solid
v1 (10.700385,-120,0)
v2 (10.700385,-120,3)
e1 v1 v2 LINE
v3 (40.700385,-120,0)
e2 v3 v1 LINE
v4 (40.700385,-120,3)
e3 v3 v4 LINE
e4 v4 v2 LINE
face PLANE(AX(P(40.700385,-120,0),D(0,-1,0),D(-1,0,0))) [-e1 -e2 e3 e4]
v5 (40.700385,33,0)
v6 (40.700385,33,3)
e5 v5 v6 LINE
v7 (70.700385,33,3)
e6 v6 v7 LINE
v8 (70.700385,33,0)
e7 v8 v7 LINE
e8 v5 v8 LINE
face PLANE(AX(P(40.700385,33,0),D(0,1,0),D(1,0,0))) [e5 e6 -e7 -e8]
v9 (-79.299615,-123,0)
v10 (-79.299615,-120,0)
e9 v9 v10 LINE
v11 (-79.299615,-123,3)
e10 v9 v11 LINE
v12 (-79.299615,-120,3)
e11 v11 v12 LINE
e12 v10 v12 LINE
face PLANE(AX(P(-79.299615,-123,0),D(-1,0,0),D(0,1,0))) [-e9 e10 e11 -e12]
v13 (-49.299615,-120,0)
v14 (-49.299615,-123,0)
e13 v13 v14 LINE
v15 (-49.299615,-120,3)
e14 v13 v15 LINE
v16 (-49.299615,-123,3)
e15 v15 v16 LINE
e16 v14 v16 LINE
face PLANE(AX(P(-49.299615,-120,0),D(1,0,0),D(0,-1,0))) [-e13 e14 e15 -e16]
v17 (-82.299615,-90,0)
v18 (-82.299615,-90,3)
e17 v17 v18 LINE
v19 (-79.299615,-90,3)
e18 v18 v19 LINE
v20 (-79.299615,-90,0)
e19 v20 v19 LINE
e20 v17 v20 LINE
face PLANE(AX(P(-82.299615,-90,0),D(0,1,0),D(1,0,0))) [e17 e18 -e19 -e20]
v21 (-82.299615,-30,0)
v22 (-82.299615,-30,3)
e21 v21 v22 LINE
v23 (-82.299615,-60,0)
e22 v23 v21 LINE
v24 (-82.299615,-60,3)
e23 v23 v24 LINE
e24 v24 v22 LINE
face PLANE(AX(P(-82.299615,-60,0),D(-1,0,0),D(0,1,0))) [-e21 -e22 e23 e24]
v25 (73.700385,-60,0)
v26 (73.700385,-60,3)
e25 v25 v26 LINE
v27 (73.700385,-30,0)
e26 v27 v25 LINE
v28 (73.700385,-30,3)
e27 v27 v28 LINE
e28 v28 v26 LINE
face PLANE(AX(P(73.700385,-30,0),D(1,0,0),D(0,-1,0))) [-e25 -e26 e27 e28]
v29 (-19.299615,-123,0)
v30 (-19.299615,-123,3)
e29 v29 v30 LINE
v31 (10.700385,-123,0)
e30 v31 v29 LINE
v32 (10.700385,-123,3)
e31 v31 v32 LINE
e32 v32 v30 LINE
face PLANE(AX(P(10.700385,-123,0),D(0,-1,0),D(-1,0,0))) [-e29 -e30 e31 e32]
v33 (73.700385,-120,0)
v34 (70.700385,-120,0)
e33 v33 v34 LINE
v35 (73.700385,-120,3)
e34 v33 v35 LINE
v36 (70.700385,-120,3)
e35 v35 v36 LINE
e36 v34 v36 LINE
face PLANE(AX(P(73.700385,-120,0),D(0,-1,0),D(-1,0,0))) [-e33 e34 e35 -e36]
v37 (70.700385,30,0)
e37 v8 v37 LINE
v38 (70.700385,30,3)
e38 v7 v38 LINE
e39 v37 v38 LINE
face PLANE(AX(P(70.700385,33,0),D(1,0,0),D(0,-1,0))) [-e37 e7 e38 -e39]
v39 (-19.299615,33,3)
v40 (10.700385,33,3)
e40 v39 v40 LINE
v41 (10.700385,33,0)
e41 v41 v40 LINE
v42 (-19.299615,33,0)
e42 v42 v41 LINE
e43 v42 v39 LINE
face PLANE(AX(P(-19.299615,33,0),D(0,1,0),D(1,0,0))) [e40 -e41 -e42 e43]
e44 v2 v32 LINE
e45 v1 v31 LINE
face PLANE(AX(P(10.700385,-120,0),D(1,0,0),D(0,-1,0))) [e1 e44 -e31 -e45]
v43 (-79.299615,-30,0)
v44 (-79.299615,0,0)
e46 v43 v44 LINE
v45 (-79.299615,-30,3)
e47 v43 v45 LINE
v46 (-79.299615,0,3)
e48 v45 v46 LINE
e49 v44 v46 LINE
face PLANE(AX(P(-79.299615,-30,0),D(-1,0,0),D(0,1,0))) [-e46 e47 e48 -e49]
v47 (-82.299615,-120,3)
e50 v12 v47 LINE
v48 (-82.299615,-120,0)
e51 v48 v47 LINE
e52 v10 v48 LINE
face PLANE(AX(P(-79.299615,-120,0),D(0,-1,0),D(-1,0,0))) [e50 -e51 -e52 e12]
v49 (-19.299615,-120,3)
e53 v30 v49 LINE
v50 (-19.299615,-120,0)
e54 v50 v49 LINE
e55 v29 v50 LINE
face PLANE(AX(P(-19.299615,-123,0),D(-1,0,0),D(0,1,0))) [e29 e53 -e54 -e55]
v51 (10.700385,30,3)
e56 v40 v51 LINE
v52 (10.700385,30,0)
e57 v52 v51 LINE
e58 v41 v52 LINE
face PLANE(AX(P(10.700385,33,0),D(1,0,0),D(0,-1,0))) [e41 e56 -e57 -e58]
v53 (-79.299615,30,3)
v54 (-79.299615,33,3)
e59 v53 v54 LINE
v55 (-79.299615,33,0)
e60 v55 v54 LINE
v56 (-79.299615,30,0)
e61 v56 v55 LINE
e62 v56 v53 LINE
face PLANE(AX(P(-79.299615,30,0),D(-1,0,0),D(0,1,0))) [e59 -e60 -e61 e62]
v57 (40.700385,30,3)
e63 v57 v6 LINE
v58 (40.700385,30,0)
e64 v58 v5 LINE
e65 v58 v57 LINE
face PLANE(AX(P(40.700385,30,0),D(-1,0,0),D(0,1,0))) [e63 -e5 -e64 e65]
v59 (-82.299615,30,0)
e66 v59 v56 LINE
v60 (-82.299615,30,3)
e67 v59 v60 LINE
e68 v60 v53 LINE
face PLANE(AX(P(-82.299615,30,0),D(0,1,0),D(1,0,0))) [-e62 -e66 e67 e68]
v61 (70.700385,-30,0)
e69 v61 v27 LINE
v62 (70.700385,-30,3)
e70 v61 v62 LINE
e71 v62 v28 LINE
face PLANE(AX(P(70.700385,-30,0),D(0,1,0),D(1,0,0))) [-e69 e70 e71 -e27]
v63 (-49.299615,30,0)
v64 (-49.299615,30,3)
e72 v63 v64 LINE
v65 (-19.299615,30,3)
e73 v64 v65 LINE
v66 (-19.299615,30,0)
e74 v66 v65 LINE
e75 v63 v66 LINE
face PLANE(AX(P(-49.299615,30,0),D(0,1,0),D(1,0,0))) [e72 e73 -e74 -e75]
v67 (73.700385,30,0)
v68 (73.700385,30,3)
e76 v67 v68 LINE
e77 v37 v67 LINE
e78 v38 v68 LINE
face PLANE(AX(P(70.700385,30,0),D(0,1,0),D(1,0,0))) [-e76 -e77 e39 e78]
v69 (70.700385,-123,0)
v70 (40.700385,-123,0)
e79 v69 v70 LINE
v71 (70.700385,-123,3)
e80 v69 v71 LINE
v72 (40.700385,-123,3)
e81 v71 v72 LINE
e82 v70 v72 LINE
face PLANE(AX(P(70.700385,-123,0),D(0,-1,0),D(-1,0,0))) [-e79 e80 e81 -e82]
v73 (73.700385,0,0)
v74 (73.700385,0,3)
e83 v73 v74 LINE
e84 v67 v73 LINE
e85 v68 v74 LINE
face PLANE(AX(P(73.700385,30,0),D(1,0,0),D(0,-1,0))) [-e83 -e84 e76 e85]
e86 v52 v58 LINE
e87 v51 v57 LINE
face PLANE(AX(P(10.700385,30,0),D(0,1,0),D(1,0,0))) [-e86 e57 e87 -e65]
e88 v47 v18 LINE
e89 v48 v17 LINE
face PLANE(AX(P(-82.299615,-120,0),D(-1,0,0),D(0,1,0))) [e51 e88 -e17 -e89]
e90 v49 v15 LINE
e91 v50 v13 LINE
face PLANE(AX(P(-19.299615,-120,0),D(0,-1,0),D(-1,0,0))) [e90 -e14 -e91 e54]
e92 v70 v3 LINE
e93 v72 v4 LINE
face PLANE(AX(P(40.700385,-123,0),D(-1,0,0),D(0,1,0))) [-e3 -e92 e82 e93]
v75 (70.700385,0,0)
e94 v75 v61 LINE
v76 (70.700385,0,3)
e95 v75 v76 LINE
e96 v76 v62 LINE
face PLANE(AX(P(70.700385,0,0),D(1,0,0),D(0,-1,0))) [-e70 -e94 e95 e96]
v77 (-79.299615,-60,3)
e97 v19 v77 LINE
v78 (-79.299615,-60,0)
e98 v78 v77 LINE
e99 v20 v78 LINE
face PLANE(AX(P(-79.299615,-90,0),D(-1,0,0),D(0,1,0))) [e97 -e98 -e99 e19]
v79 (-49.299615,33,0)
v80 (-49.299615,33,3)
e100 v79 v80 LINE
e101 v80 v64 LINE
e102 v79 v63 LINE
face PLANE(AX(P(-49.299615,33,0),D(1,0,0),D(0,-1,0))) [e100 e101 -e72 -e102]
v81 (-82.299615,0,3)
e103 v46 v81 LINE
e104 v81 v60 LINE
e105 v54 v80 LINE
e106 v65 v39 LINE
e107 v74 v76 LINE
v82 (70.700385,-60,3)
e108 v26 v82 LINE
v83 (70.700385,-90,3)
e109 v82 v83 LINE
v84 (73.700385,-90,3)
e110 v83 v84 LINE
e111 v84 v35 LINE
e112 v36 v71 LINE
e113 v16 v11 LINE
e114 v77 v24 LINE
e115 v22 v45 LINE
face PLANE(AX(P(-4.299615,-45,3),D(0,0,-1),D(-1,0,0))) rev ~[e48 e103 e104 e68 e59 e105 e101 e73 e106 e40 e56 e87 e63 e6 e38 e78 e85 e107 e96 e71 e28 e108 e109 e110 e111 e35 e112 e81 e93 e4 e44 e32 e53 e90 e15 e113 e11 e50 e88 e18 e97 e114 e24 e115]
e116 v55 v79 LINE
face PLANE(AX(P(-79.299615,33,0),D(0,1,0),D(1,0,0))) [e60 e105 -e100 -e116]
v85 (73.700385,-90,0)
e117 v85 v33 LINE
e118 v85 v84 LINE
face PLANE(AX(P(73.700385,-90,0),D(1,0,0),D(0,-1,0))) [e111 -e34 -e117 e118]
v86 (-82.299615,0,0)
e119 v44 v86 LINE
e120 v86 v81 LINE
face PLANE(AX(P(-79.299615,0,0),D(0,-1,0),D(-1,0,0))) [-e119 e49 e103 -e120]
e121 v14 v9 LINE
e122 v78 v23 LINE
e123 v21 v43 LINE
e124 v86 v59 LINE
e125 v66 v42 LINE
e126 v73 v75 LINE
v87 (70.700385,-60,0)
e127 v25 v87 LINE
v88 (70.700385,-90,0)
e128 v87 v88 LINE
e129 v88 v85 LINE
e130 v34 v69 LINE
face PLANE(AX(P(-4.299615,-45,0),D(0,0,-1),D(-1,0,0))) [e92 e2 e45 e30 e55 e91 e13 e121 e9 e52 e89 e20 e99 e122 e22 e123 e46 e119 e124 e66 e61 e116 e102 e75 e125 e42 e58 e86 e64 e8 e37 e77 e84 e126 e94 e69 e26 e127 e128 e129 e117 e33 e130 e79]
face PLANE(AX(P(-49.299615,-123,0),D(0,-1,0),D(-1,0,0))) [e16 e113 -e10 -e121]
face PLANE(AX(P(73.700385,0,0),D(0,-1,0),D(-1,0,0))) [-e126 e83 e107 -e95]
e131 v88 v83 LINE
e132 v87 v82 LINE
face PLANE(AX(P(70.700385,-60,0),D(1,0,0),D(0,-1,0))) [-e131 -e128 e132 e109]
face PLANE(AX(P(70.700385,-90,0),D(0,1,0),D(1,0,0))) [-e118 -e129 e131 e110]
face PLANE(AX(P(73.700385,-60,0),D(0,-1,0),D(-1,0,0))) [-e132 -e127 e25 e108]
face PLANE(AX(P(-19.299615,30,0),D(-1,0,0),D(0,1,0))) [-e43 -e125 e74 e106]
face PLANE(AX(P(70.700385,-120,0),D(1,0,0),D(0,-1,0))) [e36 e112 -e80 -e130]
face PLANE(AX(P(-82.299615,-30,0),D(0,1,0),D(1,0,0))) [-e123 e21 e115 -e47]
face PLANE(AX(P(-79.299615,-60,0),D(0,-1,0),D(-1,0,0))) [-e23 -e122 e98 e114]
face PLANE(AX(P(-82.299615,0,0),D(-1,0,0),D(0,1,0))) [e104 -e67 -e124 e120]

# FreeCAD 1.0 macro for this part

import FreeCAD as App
import Part
import Sketcher
from FreeCAD import Vector


def add_polygon(sketch, points):
    """Adds a closed chain of lines whose ends are joined by coincident constraints."""
    first, n = sketch.GeometryCount, len(points)
    for a, b in zip(points, points[1:] + points[:1]):
        sketch.addGeometry(Part.LineSegment(App.Vector(*a, 0), App.Vector(*b, 0)), False)
    for i in range(n):
        sketch.addConstraint(Sketcher.Constraint("Coincident", first + i, 2, first + (i + 1) % n, 1))

doc = App.newDocument("Part")
body = doc.addObject("PartDesign::Body", "Body")

# Sketch on XY plane
sketch1 = body.newObject("Sketcher::SketchObject", "Sketch")
sketch1.AttachmentSupport = (doc.getObject("XY_Plane"), [""])
sketch1.MapMode = "FlatFace"
add_polygon(sketch1, [(-82.3, -90), (-82.3, -120), (-79.3, -120), (-79.3, -123), (-49.3, -123), (-49.3, -120), (-19.3, -120), (-19.3, -123), (10.7, -123), (10.7, -120), (40.7, -120), (40.7, -123), (70.7, -123), (70.7, -120), (73.7, -120), (73.7, -90), (70.7, -90), (70.7, -60), (73.7, -60), (73.7, -30), (70.7, -30), (70.7, 0), (73.7, 0), (73.7, 30), (70.7, 30), (70.7, 33), (40.7, 33), (40.7, 30), (10.7, 30), (10.7, 33), (-19.3, 33), (-19.3, 30), (-49.3, 30), (-49.3, 33), (-79.3, 33), (-79.3, 30), (-82.3, 30), (-82.3, 0), (-79.3, 0), (-79.3, -30), (-82.3, -30), (-82.3, -60), (-79.3, -60), (-79.3, -90)])  # lines 0-43
sketch1.addConstraint(Sketcher.Constraint("Vertical", 0))
sketch1.addConstraint(Sketcher.Constraint("Horizontal", 1))
sketch1.addConstraint(Sketcher.Constraint("Vertical", 2))
sketch1.addConstraint(Sketcher.Constraint("Horizontal", 3))
sketch1.addConstraint(Sketcher.Constraint("Vertical", 4))
sketch1.addConstraint(Sketcher.Constraint("Horizontal", 5))
sketch1.addConstraint(Sketcher.Constraint("Vertical", 6))
sketch1.addConstraint(Sketcher.Constraint("Horizontal", 7))
sketch1.addConstraint(Sketcher.Constraint("Vertical", 8))
sketch1.addConstraint(Sketcher.Constraint("Horizontal", 9))
sketch1.addConstraint(Sketcher.Constraint("Vertical", 10))
sketch1.addConstraint(Sketcher.Constraint("Horizontal", 11))
sketch1.addConstraint(Sketcher.Constraint("Vertical", 12))
sketch1.addConstraint(Sketcher.Constraint("Horizontal", 13))
sketch1.addConstraint(Sketcher.Constraint("Vertical", 14))
sketch1.addConstraint(Sketcher.Constraint("Horizontal", 15))
sketch1.addConstraint(Sketcher.Constraint("Vertical", 16))
sketch1.addConstraint(Sketcher.Constraint("Horizontal", 17))
sketch1.addConstraint(Sketcher.Constraint("Vertical", 18))
sketch1.addConstraint(Sketcher.Constraint("Horizontal", 19))
sketch1.addConstraint(Sketcher.Constraint("Vertical", 20))
sketch1.addConstraint(Sketcher.Constraint("Horizontal", 21))
sketch1.addConstraint(Sketcher.Constraint("Vertical", 22))
sketch1.addConstraint(Sketcher.Constraint("Horizontal", 23))
sketch1.addConstraint(Sketcher.Constraint("Vertical", 24))
sketch1.addConstraint(Sketcher.Constraint("Horizontal", 25))
sketch1.addConstraint(Sketcher.Constraint("Vertical", 26))
sketch1.addConstraint(Sketcher.Constraint("Horizontal", 27))
sketch1.addConstraint(Sketcher.Constraint("Vertical", 28))
sketch1.addConstraint(Sketcher.Constraint("Horizontal", 29))
sketch1.addConstraint(Sketcher.Constraint("Vertical", 30))
sketch1.addConstraint(Sketcher.Constraint("Horizontal", 31))
sketch1.addConstraint(Sketcher.Constraint("Vertical", 32))
sketch1.addConstraint(Sketcher.Constraint("Horizontal", 33))
sketch1.addConstraint(Sketcher.Constraint("Vertical", 34))
sketch1.addConstraint(Sketcher.Constraint("Horizontal", 35))
sketch1.addConstraint(Sketcher.Constraint("Vertical", 36))
sketch1.addConstraint(Sketcher.Constraint("Horizontal", 37))
sketch1.addConstraint(Sketcher.Constraint("Vertical", 38))
sketch1.addConstraint(Sketcher.Constraint("Horizontal", 39))
sketch1.addConstraint(Sketcher.Constraint("Vertical", 40))
sketch1.addConstraint(Sketcher.Constraint("Horizontal", 41))
sketch1.addConstraint(Sketcher.Constraint("Vertical", 42))
sketch1.addConstraint(Sketcher.Constraint("Horizontal", 43))
sketch1.addConstraint(Sketcher.Constraint("Symmetric", 18, 2, 22, 2, -1))
sketch1.addConstraint(Sketcher.Constraint("Symmetric", 34, 2, 38, 2, -1))
sketch1.addConstraint(Sketcher.Constraint("PointOnObject", 20, 2, -1))
sketch1.addConstraint(Sketcher.Constraint("PointOnObject", 36, 2, -1))
sketch1.addConstraint(Sketcher.Constraint("Horizontal", 1, 2, 4, 2))
sketch1.addConstraint(Sketcher.Constraint("Horizontal", 3, 2, 6, 2))
sketch1.addConstraint(Sketcher.Constraint("Horizontal", 5, 2, 8, 2))
sketch1.addConstraint(Sketcher.Constraint("Horizontal", 7, 2, 10, 2))
sketch1.addConstraint(Sketcher.Constraint("Horizontal", 9, 2, 12, 2))
sketch1.addConstraint(Sketcher.Constraint("Horizontal", 23, 2, 26, 2))
sketch1.addConstraint(Sketcher.Constraint("Horizontal", 25, 2, 28, 2))
sketch1.addConstraint(Sketcher.Constraint("Horizontal", 27, 2, 30, 2))
sketch1.addConstraint(Sketcher.Constraint("Horizontal", 29, 2, 32, 2))
sketch1.addConstraint(Sketcher.Constraint("Horizontal", 31, 2, 34, 2))
sketch1.addConstraint(Sketcher.Constraint("Horizontal", 17, 2, 40, 2))
sketch1.addConstraint(Sketcher.Constraint("Horizontal", 15, 2, 42, 2))
sketch1.addConstraint(Sketcher.Constraint("Vertical", 12, 2, 15, 2))
sketch1.addConstraint(Sketcher.Constraint("Vertical", 14, 2, 17, 2))
sketch1.addConstraint(Sketcher.Constraint("Vertical", 16, 2, 19, 2))
sketch1.addConstraint(Sketcher.Constraint("Vertical", 20, 2, 23, 2))
sketch1.addConstraint(Sketcher.Constraint("Vertical", 10, 2, 25, 2))
sketch1.addConstraint(Sketcher.Constraint("Vertical", 8, 2, 27, 2))
sketch1.addConstraint(Sketcher.Constraint("Vertical", 6, 2, 29, 2))
sketch1.addConstraint(Sketcher.Constraint("Vertical", 4, 2, 31, 2))
sketch1.addConstraint(Sketcher.Constraint("Vertical", 2, 2, 33, 2))
sketch1.addConstraint(Sketcher.Constraint("Vertical", 0, 2, 35, 2))
sketch1.addConstraint(Sketcher.Constraint("Vertical", 36, 2, 39, 2))
sketch1.addConstraint(Sketcher.Constraint("Vertical", 38, 2, 41, 2))
sketch1.addConstraint(Sketcher.Constraint("Equal", 3, 5))
sketch1.addConstraint(Sketcher.Constraint("Equal", 5, 7))
sketch1.addConstraint(Sketcher.Constraint("Equal", 7, 9))
sketch1.addConstraint(Sketcher.Constraint("Equal", 9, 11))
sketch1.addConstraint(Sketcher.Constraint("Equal", 1, 13))
sketch1.addConstraint(Sketcher.Constraint("Equal", 33, 0))
sketch1.addConstraint(Sketcher.Constraint("Equal", 43, 2))
sketch1.addConstraint(Sketcher.Constraint("Equal", 14, 16))
sketch1.addConstraint(Sketcher.Constraint("Equal", 16, 18))
sketch1.addConstraint(Sketcher.Constraint("Equal", 18, 20))
sketch1.addConstraint(Sketcher.Constraint("Equal", 12, 24))
sketch1.addConstraint(Sketcher.Constraint("DistanceX", 1, 1, 1, 2, 3.0))
sketch1.addConstraint(Sketcher.Constraint("DistanceX", 3, 1, 3, 2, 30.0))
sketch1.addConstraint(Sketcher.Constraint("DistanceX", 0, 2, -1, 1, 82.299615))
pad1 = body.newObject("PartDesign::Pad", "Pad")
pad1.Profile = sketch1
pad1.Length = 3

doc.recompute()
